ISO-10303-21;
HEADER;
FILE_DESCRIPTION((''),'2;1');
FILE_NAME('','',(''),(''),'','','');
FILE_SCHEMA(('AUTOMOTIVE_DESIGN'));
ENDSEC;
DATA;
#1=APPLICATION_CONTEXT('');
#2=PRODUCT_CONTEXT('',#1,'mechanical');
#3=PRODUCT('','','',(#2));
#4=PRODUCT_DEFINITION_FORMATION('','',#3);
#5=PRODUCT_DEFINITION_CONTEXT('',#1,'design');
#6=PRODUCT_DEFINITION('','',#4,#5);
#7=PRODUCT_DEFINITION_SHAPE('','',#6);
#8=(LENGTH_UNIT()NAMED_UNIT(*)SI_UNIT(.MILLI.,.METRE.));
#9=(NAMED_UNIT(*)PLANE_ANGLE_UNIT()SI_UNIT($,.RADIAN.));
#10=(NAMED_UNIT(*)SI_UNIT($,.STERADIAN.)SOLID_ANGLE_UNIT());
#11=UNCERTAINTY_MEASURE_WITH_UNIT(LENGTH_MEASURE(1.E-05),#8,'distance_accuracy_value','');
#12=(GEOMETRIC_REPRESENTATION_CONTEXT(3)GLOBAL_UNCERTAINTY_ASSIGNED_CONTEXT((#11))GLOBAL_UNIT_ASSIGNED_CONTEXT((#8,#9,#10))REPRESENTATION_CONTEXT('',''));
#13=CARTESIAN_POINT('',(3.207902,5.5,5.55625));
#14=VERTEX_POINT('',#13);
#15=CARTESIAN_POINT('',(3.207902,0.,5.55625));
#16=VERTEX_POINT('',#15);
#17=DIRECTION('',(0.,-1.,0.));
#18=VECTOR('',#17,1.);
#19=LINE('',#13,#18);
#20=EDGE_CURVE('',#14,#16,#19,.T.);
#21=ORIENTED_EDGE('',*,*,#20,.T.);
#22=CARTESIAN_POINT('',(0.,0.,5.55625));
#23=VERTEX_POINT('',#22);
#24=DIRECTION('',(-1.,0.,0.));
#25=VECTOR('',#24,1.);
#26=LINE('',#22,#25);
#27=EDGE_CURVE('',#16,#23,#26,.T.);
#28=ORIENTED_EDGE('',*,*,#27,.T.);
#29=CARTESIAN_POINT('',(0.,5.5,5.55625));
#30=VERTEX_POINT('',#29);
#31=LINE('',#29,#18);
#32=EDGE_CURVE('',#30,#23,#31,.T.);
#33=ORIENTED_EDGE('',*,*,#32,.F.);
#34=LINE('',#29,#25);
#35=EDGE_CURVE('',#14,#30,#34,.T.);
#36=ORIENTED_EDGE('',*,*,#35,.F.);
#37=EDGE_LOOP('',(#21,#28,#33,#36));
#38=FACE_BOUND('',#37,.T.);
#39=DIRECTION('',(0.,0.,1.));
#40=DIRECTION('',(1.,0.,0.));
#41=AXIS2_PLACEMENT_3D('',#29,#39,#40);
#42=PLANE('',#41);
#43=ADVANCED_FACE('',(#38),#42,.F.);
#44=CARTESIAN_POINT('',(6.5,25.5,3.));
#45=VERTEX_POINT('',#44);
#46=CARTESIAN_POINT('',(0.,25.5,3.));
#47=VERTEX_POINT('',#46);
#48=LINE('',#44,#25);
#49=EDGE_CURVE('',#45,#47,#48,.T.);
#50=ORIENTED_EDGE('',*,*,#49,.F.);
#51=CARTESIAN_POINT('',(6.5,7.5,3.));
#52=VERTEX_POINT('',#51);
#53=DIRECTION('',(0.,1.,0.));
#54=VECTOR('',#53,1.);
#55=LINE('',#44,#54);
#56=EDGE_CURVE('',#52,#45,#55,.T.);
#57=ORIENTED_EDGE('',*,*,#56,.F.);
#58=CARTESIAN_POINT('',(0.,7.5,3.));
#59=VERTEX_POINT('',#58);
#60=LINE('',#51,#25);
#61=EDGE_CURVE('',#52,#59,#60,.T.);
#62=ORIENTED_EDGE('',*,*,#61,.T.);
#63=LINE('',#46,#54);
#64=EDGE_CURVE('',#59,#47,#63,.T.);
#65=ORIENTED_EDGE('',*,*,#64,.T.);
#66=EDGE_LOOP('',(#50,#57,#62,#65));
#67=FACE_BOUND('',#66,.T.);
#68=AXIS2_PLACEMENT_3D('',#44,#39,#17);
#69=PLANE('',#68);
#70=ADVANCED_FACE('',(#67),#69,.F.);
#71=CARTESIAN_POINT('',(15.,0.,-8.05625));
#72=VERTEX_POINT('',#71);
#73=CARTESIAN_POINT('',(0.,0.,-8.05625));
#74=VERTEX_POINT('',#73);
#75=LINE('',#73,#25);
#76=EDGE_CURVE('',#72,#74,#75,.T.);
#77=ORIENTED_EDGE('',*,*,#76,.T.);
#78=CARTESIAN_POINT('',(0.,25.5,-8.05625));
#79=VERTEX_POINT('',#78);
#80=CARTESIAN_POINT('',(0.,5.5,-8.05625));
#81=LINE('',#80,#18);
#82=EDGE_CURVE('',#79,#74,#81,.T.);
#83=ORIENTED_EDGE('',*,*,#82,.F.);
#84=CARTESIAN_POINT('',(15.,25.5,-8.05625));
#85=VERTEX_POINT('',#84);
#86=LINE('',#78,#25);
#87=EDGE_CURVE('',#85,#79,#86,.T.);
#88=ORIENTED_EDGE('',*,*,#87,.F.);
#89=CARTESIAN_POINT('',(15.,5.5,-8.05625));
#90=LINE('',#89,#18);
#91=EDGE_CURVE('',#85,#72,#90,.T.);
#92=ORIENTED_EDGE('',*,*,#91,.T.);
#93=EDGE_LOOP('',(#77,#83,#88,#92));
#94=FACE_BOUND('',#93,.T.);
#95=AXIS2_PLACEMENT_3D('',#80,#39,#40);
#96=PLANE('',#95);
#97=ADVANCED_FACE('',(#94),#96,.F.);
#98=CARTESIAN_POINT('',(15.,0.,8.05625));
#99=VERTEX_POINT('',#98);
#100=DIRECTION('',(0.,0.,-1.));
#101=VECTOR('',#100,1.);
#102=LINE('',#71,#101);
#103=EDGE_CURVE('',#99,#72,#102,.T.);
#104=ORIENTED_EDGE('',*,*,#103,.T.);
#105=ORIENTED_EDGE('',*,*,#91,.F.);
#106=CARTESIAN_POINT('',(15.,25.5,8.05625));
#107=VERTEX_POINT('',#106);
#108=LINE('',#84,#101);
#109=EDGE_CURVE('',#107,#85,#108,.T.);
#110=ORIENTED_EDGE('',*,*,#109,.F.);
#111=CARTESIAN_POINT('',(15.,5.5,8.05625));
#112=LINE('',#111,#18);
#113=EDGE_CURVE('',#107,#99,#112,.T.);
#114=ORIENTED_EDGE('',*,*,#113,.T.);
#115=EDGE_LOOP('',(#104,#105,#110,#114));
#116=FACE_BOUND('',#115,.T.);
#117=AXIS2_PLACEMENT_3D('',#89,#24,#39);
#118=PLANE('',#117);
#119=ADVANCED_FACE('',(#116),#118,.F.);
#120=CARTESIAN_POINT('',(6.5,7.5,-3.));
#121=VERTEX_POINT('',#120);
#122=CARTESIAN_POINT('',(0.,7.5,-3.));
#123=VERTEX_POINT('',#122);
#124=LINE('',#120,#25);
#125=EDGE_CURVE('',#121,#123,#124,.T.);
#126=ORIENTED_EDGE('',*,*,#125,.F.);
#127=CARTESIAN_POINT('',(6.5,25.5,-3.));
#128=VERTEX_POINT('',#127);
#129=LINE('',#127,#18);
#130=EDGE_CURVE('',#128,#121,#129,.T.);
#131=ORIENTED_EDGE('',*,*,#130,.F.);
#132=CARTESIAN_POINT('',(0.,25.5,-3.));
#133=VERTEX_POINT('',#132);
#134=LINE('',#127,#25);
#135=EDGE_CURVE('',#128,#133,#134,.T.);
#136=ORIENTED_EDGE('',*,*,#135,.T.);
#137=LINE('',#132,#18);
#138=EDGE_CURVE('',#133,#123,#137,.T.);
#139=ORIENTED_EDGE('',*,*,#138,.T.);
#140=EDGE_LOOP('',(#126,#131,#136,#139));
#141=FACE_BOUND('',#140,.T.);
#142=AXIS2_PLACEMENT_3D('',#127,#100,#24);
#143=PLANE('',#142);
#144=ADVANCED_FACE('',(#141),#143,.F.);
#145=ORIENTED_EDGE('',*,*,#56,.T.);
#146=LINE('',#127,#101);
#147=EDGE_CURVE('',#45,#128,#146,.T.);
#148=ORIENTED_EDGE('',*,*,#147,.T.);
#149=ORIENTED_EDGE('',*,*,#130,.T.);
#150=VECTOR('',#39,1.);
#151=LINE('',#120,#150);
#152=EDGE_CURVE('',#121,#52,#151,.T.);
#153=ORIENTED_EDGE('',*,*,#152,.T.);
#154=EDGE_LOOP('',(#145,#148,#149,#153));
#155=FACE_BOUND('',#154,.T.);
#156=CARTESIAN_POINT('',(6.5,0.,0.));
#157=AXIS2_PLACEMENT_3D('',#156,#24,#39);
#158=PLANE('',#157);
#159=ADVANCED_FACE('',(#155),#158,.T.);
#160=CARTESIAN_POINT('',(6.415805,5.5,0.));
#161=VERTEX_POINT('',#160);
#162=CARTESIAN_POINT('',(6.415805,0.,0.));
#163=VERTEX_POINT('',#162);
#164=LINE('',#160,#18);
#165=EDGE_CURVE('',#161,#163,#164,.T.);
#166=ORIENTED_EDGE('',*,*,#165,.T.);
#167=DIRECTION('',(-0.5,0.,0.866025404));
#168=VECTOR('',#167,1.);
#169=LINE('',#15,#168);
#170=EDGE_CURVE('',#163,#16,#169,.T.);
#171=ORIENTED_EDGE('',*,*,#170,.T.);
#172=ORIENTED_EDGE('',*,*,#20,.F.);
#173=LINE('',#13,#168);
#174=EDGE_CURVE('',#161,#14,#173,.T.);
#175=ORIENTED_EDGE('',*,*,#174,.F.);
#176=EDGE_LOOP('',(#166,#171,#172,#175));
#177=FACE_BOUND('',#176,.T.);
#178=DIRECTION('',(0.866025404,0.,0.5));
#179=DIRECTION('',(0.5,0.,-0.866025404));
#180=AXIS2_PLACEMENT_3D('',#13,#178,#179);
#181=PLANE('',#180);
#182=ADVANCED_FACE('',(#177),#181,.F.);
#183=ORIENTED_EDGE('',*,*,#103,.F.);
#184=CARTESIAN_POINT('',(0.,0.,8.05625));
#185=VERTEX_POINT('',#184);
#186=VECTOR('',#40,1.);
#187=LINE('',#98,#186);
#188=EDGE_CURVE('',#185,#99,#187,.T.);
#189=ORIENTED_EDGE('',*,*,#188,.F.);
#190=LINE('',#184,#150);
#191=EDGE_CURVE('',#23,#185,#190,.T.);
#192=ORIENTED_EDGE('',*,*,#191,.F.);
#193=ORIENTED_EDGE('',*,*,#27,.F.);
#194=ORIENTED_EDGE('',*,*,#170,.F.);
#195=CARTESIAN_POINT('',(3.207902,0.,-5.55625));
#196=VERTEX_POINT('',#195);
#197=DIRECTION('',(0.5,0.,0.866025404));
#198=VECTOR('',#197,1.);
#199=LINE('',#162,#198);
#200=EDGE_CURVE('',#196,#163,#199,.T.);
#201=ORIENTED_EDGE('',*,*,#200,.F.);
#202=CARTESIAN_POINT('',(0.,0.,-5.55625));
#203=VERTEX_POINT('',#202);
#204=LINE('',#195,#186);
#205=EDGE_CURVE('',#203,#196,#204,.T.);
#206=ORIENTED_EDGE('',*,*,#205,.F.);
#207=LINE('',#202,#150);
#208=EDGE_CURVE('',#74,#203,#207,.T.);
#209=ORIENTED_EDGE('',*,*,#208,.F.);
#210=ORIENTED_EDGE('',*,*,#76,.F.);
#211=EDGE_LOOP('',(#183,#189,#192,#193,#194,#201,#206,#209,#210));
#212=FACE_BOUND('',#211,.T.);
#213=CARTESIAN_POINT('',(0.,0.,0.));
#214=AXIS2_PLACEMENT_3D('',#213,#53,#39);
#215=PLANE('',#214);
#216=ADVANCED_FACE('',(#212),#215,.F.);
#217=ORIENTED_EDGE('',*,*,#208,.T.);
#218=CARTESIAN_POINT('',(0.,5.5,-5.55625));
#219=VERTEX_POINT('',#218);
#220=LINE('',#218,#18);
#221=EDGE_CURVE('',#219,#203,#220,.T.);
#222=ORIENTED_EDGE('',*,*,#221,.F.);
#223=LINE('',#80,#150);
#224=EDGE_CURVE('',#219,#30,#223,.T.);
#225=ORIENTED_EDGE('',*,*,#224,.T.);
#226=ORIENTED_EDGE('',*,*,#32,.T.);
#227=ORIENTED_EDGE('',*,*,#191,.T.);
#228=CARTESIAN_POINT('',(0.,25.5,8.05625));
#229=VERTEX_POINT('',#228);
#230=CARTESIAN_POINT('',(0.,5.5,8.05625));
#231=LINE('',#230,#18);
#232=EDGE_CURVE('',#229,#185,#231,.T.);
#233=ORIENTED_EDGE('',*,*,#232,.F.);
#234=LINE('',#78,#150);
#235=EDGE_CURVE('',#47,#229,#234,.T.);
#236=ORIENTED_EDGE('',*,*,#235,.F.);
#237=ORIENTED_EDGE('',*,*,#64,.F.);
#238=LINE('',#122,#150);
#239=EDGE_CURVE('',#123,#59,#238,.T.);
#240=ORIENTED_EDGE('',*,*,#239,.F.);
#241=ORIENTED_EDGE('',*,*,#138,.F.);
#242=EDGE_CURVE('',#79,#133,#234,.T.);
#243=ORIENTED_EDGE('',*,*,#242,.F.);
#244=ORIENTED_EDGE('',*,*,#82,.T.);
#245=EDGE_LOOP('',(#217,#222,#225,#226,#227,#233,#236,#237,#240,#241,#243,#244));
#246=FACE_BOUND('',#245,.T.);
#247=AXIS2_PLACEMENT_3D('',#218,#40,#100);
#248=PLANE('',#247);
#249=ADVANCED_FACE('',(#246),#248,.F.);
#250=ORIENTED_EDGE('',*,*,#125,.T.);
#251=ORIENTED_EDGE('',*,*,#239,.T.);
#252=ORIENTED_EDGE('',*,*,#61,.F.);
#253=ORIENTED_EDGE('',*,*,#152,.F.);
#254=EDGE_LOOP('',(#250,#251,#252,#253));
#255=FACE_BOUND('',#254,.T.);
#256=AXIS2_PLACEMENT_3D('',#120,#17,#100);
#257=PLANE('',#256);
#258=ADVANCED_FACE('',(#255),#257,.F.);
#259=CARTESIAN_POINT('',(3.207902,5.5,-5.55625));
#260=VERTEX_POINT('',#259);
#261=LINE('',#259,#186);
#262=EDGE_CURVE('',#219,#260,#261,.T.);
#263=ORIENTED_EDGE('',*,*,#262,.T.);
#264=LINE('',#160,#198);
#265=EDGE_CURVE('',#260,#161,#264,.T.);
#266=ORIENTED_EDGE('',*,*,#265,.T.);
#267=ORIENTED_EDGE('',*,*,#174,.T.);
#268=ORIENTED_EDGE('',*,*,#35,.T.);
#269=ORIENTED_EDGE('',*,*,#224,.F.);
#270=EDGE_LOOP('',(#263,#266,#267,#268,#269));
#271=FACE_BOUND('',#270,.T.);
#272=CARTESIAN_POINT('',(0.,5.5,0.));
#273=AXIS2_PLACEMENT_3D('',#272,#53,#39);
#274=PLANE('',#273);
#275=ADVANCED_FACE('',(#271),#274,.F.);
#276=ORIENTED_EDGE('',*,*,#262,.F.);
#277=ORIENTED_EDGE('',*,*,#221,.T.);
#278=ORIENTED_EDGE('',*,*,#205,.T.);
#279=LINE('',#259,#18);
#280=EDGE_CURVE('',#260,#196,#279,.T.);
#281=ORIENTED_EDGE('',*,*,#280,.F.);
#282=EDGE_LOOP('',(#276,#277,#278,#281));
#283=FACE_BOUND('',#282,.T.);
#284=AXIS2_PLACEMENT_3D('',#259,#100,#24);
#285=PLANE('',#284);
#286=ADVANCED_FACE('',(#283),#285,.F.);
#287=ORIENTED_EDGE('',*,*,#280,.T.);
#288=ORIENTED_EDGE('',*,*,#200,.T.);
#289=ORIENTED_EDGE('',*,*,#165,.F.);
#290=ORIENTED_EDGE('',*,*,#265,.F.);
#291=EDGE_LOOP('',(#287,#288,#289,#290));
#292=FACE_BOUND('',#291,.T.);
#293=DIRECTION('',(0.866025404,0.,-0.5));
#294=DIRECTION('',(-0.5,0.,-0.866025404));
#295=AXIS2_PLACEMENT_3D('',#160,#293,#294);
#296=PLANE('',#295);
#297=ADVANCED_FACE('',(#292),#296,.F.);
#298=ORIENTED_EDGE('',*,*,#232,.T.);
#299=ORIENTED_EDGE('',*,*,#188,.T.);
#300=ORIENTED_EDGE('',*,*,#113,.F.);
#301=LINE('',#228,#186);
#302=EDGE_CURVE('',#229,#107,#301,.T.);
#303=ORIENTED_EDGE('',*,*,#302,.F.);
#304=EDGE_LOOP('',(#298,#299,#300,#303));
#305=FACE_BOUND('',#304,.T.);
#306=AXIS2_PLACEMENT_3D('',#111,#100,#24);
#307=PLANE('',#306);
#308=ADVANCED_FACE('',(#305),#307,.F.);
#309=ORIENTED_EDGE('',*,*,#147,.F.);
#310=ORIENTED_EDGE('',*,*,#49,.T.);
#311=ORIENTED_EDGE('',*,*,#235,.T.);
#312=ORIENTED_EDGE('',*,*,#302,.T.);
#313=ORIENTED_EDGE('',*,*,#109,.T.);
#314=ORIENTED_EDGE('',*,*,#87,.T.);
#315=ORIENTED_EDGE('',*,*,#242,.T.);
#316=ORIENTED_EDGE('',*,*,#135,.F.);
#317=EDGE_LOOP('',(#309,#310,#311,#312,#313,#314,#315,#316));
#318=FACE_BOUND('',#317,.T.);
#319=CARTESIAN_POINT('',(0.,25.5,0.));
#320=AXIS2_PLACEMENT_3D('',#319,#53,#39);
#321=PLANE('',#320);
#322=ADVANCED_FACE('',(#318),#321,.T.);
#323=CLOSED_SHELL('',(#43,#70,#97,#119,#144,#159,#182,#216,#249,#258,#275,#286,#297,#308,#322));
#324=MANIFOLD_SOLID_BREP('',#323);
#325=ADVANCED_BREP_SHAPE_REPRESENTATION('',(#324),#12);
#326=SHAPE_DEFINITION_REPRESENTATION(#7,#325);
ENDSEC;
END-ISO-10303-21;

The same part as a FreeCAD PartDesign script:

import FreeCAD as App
import Part
import Sketcher
Q = App.Units.Quantity

doc = App.newDocument("Part")
body = doc.addObject("PartDesign::Body", "Body")

sketch1 = body.newObject("Sketcher::SketchObject", "Sketch")
sketch1.AttachmentSupport = (doc.getObject("XZ_Plane"), [""])
sketch1.MapMode = "FlatFace"
sketch1.addGeometry([
    Part.LineSegment(App.Vector(0, -8.1, 0), App.Vector(0, -5.6, 0)),
    Part.LineSegment(App.Vector(0, -5.6, 0), App.Vector(3.2, -5.6, 0)),
    Part.LineSegment(App.Vector(3.2, -5.6, 0), App.Vector(6.4, 0, 0)),
    Part.LineSegment(App.Vector(6.4, 0, 0), App.Vector(3.2, 5.6, 0)),
    Part.LineSegment(App.Vector(3.2, 5.6, 0), App.Vector(0, 5.6, 0)),
    Part.LineSegment(App.Vector(0, 5.6, 0), App.Vector(0, 8.1, 0)),
    Part.LineSegment(App.Vector(0, 8.1, 0), App.Vector(15, 8.1, 0)),
    Part.LineSegment(App.Vector(15, 8.1, 0), App.Vector(15, -8.1, 0)),
    Part.LineSegment(App.Vector(15, -8.1, 0), App.Vector(0, -8.1, 0)),
], False)
sketch1.addConstraint([
    Sketcher.Constraint("Coincident", 0, 2, 1, 1),
    Sketcher.Constraint("Coincident", 1, 2, 2, 1),
    Sketcher.Constraint("Coincident", 2, 2, 3, 1),
    Sketcher.Constraint("Coincident", 3, 2, 4, 1),
    Sketcher.Constraint("Coincident", 4, 2, 5, 1),
    Sketcher.Constraint("Coincident", 5, 2, 6, 1),
    Sketcher.Constraint("Coincident", 6, 2, 7, 1),
    Sketcher.Constraint("Coincident", 7, 2, 8, 1),
    Sketcher.Constraint("Coincident", 8, 2, 0, 1),
    Sketcher.Constraint("Vertical", 0),
    Sketcher.Constraint("Horizontal", 1),
    Sketcher.Constraint("Horizontal", 4),
    Sketcher.Constraint("Vertical", 5),
    Sketcher.Constraint("Horizontal", 6),
    Sketcher.Constraint("Vertical", 7),
    Sketcher.Constraint("Horizontal", 8),
    Sketcher.Constraint("Symmetric", 0, 2, 4, 2, -1, 1),
    Sketcher.Constraint("Symmetric", 5, 2, 8, 2, -1),
    Sketcher.Constraint("PointOnObject", 2, 2, -1),
    Sketcher.Constraint("Vertical", 1, 2, 3, 2),
    Sketcher.Constraint("DistanceX", 6, 1, 6, 2, 15.0),
    Sketcher.Constraint("Angle", 2, Q("60 deg")),
    Sketcher.Constraint("DistanceY", 0, 1, 0, 2, 2.5),
    Sketcher.Constraint("DistanceY", 7, 2, 7, 1, 16.1125),
    Sketcher.Constraint("DistanceX", 1, 1, 1, 2, 3.207902),
])
pad1 = body.newObject("PartDesign::Pad", "Pad")
pad1.Profile = sketch1
pad1.Length = 5.5
pad1.Reversed = True

sketch2 = body.newObject("Sketcher::SketchObject", "Sketch001")
sketch2.AttachmentSupport = (doc.getObject("XZ_Plane"), [""])
sketch2.MapMode = "FlatFace"
sketch2.AttachmentOffset = App.Placement(App.Vector(0, 0, -5.5), App.Rotation())
sketch2.addGeometry([
    Part.LineSegment(App.Vector(0, -8, 0), App.Vector(0, 8, 0)),
    Part.LineSegment(App.Vector(0, 8, 0), App.Vector(15, 8, 0)),
    Part.LineSegment(App.Vector(15, 8, 0), App.Vector(15, -8, 0)),
    Part.LineSegment(App.Vector(15, -8, 0), App.Vector(0, -8, 0)),
], False)
sketch2.addConstraint([
    Sketcher.Constraint("Coincident", 0, 2, 1, 1),
    Sketcher.Constraint("Coincident", 1, 2, 2, 1),
    Sketcher.Constraint("Coincident", 2, 2, 3, 1),
    Sketcher.Constraint("Coincident", 3, 2, 0, 1),
    Sketcher.Constraint("Vertical", 0),
    Sketcher.Constraint("Horizontal", 1),
    Sketcher.Constraint("Vertical", 2),
    Sketcher.Constraint("Horizontal", 3),
    Sketcher.Constraint("Symmetric", 0, 2, 3, 2, -1, 1),
    Sketcher.Constraint("DistanceX", 1, 1, 1, 2, 15.0),
    Sketcher.Constraint("DistanceY", 0, 1, 0, 2, 16.1125),
])
pad2 = body.newObject("PartDesign::Pad", "Pad001")
pad2.Profile = sketch2
pad2.Length = 20
pad2.Reversed = True

sketch3 = body.newObject("Sketcher::SketchObject", "Sketch002")
sketch3.AttachmentSupport = (doc.getObject("YZ_Plane"), [""])
sketch3.MapMode = "FlatFace"
sketch3.addGeometry([
    Part.LineSegment(App.Vector(26, -3, 0), App.Vector(8, -3, 0)),
    Part.LineSegment(App.Vector(8, -3, 0), App.Vector(8, 3, 0)),
    Part.LineSegment(App.Vector(8, 3, 0), App.Vector(26, 3, 0)),
    Part.LineSegment(App.Vector(26, 3, 0), App.Vector(26, -3, 0)),
], False)
sketch3.addConstraint([
    Sketcher.Constraint("Coincident", 0, 2, 1, 1),
    Sketcher.Constraint("Coincident", 1, 2, 2, 1),
    Sketcher.Constraint("Coincident", 2, 2, 3, 1),
    Sketcher.Constraint("Coincident", 3, 2, 0, 1),
    Sketcher.Constraint("Horizontal", 0),
    Sketcher.Constraint("Vertical", 1),
    Sketcher.Constraint("Horizontal", 2),
    Sketcher.Constraint("Vertical", 3),
    Sketcher.Constraint("DistanceX", 0, 2, 0, 1, 18.0),
    Sketcher.Constraint("DistanceY", 1, 1, 1, 2, 6.0),
    Sketcher.Constraint("DistanceY", 0, 2, -1, 1, 3.0),
    Sketcher.Constraint("DistanceX", -1, 1, 0, 2, 7.5),
])
pocket1 = body.newObject("PartDesign::Pocket", "Pocket")
pocket1.Profile = sketch3
pocket1.Length = 6.5
pocket1.Reversed = True

doc.recompute()
